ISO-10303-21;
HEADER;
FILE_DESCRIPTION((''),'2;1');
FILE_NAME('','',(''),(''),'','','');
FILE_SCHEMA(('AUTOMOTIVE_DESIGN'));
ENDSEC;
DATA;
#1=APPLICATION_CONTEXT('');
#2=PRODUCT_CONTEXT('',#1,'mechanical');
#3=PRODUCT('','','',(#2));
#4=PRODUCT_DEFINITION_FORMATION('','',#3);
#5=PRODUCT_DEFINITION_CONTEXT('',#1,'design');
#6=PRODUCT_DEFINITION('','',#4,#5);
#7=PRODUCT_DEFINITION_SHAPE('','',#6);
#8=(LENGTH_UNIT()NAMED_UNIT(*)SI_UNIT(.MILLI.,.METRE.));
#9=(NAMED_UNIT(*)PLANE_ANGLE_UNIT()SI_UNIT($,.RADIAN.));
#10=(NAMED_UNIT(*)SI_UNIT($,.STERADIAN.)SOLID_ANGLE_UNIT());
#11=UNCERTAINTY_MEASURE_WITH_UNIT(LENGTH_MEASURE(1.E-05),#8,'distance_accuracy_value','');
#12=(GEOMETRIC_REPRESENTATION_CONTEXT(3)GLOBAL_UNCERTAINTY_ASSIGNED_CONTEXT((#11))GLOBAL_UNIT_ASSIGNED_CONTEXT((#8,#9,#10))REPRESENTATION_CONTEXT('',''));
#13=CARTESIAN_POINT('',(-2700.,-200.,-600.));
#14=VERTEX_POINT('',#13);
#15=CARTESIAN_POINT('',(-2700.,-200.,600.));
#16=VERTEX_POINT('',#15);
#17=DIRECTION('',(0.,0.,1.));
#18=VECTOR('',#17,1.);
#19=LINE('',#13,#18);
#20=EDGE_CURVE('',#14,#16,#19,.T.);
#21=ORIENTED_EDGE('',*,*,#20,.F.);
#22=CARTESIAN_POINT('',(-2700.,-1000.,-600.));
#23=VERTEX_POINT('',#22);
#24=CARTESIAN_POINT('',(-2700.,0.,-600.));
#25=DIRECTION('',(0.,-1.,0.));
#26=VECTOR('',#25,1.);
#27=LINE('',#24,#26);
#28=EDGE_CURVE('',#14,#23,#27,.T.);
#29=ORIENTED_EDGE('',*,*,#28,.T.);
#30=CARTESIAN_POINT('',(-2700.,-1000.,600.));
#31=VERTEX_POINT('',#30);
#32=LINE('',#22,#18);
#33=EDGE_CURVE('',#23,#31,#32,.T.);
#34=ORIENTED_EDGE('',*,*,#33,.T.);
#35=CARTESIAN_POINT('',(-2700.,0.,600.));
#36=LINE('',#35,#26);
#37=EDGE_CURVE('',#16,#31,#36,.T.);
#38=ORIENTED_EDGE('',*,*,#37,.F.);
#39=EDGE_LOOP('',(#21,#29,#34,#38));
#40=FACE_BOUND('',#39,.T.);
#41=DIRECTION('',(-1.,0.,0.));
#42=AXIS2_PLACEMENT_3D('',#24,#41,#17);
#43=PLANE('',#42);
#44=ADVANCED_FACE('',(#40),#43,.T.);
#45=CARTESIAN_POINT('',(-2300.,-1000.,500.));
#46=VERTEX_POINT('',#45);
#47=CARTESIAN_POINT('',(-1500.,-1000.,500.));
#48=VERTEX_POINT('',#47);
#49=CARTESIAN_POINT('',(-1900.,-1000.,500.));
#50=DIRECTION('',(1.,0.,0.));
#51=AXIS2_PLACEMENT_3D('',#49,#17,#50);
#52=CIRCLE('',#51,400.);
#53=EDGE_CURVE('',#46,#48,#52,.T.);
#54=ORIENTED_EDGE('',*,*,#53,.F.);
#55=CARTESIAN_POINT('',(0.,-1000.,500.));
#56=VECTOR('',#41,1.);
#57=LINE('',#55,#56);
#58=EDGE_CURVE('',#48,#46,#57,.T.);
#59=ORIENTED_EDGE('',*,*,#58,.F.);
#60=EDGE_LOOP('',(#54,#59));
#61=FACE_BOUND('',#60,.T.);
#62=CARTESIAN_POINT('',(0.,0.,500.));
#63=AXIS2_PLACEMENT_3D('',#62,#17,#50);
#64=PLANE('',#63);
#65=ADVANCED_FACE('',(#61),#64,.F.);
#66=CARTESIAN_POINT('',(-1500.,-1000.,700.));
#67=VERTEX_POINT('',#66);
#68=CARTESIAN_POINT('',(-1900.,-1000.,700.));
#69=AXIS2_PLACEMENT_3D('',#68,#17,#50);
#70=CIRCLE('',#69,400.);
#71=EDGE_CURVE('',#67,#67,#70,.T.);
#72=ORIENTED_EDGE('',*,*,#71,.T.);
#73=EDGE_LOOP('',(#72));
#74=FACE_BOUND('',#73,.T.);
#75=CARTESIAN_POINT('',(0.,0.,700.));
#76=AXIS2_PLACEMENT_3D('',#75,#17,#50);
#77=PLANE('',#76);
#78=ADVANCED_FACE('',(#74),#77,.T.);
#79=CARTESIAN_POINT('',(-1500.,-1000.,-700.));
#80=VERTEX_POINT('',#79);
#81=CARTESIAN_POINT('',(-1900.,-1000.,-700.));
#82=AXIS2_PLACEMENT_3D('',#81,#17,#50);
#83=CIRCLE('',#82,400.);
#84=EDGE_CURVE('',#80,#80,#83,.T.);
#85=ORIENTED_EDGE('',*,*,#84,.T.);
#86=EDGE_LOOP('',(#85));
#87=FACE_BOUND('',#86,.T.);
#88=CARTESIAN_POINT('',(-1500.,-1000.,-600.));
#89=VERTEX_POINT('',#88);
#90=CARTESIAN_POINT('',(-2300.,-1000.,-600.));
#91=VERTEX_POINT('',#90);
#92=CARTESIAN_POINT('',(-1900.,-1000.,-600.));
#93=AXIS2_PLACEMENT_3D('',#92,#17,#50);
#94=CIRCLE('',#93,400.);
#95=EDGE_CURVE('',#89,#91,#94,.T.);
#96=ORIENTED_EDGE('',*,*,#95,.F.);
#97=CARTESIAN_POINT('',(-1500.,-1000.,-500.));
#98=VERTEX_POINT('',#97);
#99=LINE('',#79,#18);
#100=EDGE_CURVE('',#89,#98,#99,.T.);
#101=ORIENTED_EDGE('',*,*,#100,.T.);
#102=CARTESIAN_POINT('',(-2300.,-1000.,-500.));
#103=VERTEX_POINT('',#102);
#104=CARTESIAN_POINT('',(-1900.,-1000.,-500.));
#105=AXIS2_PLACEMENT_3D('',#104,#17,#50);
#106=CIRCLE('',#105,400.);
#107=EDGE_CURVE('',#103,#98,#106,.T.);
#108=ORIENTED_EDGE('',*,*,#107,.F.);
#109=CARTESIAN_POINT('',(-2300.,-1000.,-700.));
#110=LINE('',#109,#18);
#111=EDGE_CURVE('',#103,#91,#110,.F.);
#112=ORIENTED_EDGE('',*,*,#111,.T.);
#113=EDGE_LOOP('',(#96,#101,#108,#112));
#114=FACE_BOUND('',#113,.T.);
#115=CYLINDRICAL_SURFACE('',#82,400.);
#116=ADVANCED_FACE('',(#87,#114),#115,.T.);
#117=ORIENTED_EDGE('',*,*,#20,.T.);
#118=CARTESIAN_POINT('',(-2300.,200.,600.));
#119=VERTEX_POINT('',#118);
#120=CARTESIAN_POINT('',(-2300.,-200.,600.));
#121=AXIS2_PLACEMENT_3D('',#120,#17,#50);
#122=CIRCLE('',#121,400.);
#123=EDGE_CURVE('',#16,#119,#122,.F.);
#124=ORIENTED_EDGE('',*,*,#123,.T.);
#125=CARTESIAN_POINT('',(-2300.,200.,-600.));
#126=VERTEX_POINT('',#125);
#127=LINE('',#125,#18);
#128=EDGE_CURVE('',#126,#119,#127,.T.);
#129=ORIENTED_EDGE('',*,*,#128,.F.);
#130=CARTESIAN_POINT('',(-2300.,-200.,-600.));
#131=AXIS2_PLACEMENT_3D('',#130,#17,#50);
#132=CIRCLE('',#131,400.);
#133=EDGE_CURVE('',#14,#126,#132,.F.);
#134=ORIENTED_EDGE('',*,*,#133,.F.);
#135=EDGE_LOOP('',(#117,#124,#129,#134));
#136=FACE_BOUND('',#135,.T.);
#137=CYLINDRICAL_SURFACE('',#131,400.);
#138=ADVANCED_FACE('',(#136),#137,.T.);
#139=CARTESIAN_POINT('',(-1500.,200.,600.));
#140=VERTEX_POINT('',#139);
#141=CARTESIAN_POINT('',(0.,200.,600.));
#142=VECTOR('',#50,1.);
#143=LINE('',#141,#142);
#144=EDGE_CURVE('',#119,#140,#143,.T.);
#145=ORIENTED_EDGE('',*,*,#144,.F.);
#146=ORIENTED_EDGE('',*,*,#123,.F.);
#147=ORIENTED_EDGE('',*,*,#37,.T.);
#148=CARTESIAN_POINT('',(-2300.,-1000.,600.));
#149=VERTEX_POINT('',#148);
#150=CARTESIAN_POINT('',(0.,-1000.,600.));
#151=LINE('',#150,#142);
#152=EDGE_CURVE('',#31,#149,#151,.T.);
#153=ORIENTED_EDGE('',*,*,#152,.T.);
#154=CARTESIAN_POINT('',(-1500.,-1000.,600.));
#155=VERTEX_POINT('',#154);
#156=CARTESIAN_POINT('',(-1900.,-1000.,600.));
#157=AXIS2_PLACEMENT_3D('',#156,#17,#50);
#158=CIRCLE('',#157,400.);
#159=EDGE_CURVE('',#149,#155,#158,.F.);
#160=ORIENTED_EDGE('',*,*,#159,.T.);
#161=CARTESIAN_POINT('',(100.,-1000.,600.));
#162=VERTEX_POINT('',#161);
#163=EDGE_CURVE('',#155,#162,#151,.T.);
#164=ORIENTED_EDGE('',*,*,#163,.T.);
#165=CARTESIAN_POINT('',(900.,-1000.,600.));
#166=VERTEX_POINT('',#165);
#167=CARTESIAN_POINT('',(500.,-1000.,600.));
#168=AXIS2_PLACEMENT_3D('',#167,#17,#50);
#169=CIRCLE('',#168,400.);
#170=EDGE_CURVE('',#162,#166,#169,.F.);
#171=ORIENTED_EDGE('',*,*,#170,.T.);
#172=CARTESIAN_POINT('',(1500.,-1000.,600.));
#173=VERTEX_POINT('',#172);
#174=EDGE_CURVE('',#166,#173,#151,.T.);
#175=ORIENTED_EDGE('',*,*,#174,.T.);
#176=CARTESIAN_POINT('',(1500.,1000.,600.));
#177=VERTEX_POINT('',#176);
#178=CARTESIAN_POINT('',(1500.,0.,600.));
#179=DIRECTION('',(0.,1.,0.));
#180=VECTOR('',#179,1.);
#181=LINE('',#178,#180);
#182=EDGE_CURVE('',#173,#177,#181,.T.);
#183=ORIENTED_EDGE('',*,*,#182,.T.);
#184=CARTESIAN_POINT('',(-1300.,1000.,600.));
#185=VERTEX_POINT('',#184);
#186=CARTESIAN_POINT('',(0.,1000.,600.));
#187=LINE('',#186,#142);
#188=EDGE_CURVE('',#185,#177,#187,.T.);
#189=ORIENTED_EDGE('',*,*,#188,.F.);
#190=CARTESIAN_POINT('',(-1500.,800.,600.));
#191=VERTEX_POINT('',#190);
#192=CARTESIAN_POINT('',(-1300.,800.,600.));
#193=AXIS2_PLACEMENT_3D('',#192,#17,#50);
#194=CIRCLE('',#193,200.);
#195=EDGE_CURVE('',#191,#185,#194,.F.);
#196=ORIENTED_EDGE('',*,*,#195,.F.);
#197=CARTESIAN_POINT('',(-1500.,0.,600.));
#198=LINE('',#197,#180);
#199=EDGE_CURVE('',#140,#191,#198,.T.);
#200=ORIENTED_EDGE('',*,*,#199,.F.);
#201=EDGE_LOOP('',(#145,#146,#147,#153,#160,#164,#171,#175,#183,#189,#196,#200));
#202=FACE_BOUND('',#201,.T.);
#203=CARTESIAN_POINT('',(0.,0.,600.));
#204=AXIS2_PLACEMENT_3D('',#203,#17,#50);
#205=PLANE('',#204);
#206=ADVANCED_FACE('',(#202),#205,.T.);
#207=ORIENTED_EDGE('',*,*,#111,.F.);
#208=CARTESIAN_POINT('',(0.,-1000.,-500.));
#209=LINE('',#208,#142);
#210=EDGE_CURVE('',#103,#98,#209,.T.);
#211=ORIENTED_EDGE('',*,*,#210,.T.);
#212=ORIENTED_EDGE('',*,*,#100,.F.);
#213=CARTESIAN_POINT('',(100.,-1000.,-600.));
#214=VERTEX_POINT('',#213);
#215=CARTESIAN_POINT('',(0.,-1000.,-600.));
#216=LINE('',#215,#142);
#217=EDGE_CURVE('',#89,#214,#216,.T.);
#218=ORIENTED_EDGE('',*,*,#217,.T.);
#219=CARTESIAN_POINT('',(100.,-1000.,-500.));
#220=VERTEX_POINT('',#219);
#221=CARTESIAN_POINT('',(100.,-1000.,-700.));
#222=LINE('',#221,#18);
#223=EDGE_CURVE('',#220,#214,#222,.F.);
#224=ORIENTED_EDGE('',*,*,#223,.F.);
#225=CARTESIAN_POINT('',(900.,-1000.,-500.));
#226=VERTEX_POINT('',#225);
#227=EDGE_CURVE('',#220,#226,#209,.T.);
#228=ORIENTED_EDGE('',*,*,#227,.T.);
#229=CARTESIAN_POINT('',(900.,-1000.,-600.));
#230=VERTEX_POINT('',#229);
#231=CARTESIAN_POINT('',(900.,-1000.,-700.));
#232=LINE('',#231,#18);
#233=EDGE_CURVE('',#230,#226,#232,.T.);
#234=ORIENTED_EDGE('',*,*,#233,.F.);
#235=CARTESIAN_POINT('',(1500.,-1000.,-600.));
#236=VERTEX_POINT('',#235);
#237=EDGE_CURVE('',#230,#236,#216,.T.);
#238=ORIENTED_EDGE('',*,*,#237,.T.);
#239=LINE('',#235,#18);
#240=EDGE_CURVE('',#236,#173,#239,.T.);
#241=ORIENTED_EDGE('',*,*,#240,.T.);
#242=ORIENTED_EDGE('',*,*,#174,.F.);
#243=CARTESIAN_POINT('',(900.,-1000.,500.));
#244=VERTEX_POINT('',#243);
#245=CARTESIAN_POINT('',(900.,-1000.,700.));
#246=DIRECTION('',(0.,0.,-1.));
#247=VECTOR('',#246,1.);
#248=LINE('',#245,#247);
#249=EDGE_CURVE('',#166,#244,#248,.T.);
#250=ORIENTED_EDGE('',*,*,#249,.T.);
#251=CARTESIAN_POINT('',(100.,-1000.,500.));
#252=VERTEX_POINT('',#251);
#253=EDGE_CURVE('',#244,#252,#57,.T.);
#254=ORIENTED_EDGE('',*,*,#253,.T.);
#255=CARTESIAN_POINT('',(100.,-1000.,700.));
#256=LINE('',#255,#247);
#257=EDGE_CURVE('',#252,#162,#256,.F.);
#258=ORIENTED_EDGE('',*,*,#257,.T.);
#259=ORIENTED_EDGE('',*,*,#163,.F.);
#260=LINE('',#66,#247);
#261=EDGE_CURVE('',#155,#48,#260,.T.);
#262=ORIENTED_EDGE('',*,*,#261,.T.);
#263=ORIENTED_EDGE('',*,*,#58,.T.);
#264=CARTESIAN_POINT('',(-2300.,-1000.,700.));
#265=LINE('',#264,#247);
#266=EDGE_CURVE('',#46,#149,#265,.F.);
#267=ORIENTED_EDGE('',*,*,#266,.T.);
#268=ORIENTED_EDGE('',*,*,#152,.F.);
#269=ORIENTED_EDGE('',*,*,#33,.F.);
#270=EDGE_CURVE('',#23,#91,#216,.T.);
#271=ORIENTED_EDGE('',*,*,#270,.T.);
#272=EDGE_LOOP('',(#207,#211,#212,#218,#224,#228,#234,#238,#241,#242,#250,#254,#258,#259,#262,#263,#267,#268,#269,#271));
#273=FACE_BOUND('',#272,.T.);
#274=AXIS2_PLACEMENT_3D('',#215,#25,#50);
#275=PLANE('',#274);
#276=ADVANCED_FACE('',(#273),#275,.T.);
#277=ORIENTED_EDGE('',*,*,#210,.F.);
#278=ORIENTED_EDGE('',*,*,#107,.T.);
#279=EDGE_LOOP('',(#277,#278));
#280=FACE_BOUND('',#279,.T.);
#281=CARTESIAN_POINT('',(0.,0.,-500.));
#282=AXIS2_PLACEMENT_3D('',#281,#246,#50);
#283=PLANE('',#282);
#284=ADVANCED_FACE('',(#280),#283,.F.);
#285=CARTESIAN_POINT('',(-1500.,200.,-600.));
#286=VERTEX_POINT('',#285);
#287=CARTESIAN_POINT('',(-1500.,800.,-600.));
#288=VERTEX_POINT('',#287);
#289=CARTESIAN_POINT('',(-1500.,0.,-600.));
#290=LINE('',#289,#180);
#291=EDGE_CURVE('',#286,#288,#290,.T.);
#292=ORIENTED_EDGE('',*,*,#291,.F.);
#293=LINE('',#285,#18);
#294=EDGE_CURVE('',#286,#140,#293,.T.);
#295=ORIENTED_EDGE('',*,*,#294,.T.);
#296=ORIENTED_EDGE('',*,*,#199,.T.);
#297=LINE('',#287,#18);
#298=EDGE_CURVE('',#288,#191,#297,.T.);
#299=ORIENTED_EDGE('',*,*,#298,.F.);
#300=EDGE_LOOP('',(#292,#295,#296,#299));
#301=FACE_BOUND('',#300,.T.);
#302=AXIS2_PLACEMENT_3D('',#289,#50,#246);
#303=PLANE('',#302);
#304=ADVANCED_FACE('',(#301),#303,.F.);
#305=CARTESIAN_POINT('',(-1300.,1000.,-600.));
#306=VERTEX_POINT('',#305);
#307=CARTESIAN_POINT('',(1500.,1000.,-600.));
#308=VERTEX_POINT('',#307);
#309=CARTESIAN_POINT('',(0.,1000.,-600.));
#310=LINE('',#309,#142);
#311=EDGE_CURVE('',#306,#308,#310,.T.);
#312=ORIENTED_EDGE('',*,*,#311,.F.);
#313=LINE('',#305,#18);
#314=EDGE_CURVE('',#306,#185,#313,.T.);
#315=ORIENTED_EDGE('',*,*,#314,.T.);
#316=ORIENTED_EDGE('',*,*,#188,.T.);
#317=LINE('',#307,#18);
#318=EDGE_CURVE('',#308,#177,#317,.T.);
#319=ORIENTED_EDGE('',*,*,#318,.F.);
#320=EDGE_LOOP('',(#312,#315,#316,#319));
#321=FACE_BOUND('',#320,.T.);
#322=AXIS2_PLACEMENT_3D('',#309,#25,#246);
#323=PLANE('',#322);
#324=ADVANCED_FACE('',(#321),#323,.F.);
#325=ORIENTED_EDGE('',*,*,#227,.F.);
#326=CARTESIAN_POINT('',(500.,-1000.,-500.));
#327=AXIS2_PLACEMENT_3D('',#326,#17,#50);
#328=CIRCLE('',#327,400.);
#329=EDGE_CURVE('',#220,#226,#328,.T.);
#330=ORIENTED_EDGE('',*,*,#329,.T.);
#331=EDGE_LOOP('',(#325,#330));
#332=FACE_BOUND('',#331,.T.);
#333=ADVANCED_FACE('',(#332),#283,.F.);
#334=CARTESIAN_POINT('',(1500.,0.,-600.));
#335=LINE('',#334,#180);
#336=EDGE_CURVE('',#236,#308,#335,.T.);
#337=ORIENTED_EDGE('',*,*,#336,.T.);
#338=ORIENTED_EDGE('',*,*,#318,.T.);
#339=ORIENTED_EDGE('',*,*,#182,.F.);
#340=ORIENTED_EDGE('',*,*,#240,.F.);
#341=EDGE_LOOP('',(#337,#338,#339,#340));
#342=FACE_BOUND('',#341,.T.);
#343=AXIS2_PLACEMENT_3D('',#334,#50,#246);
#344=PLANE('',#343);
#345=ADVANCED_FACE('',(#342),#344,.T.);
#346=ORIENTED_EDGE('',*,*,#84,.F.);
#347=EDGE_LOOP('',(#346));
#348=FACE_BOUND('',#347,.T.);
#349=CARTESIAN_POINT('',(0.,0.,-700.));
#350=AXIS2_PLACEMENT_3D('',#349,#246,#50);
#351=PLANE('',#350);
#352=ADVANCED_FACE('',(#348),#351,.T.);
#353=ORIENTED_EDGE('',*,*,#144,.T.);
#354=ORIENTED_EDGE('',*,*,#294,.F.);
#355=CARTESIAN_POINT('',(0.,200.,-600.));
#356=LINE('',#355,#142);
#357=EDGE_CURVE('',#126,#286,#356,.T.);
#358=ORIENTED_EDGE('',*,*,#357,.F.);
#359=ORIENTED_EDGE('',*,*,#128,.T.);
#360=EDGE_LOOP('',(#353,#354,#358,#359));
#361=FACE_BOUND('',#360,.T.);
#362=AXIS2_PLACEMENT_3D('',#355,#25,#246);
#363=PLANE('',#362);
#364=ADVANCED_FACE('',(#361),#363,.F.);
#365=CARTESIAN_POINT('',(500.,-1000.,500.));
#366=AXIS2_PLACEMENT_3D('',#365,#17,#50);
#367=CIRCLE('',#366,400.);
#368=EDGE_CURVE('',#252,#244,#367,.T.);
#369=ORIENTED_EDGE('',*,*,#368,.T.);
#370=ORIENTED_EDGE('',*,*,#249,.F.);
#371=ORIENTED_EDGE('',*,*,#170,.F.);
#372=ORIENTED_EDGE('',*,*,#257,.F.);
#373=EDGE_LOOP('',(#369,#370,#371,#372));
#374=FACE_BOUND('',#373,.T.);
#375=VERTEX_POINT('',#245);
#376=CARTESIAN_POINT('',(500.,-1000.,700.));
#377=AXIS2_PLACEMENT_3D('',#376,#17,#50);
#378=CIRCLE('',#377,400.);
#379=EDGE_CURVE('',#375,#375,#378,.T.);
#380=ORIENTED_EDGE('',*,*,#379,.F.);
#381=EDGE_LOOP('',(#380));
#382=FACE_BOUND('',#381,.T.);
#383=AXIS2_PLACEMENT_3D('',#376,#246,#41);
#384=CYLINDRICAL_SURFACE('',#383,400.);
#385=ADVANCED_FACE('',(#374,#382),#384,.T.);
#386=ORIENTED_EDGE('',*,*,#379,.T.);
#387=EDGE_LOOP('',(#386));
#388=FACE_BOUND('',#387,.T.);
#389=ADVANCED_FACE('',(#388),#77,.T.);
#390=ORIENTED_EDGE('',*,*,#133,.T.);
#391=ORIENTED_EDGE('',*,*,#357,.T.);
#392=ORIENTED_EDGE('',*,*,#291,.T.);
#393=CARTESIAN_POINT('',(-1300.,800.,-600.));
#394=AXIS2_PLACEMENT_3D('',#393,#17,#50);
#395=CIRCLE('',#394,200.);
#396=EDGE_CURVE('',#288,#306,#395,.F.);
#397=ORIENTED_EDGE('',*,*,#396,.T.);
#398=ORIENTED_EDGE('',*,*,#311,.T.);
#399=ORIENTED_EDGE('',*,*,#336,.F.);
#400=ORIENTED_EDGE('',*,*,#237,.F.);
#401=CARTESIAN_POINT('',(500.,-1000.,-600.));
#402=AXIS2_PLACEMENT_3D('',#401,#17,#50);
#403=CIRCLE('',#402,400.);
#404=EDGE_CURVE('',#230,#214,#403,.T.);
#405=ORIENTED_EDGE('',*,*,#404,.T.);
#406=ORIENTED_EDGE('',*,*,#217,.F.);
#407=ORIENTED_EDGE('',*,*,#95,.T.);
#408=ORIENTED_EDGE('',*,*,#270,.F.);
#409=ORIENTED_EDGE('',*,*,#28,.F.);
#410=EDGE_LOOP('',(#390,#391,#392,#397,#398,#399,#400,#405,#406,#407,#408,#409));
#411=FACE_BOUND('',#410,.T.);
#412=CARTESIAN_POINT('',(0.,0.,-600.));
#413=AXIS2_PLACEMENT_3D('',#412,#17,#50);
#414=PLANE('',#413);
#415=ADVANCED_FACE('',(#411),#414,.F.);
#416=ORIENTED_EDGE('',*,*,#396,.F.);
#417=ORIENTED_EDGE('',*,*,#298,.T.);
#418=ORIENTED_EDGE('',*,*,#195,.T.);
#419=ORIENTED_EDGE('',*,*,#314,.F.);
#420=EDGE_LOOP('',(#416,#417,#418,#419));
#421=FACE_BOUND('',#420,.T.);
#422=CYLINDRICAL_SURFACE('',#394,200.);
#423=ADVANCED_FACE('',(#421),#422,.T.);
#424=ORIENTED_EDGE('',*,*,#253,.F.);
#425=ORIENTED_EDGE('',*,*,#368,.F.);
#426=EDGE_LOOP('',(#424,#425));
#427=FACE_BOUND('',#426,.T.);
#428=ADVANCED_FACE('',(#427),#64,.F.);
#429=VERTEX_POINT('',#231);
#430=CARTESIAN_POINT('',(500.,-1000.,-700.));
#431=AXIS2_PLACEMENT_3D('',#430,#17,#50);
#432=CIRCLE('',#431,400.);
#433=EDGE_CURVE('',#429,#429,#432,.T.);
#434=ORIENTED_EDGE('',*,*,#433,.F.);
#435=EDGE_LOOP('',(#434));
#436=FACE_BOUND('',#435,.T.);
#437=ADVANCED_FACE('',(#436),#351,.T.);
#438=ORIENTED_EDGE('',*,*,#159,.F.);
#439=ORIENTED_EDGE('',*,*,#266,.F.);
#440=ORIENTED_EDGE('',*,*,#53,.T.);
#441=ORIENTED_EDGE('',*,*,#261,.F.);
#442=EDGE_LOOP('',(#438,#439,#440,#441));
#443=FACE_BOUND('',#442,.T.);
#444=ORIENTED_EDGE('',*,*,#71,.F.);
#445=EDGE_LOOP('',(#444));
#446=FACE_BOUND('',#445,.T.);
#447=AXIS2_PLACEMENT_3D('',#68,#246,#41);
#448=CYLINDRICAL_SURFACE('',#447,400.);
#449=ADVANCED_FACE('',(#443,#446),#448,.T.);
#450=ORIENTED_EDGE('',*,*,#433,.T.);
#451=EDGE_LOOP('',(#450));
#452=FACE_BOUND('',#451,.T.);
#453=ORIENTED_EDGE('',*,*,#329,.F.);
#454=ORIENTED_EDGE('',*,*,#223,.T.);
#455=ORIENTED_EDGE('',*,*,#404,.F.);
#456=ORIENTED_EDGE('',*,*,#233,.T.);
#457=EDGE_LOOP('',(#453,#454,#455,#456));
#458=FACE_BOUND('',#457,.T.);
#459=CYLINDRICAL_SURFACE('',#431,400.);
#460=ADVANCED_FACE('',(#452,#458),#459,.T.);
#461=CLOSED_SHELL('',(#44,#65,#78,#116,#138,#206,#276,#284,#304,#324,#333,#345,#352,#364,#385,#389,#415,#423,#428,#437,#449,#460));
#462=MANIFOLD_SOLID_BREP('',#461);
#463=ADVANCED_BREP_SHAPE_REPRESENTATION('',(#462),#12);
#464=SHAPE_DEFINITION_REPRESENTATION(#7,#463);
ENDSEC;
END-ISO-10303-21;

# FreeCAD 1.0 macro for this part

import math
import FreeCAD as App
import Part
import Sketcher

doc = App.newDocument("Part")
body = doc.addObject("PartDesign::Body", "Body")

# Sketch on XY plane
sketch1 = body.newObject("Sketcher::SketchObject", "Sketch")
sketch1.AttachmentSupport = (doc.getObject("XY_Plane"), [""])
sketch1.MapMode = "FlatFace"
sketch1.addGeometry([
    Part.LineSegment(App.Vector(1500, -1000, 0), App.Vector(1500, 1000, 0)),  # 0
    Part.LineSegment(App.Vector(1500, 1000, 0), App.Vector(-1300, 1000, 0)),  # 1
    Part.ArcOfCircle(Part.Circle(App.Vector(-1300, 800, 0), App.Vector(0, 0, 1), 200), math.radians(90), math.radians(180)),  # 2
    Part.LineSegment(App.Vector(-1500, 800, 0), App.Vector(-1500, 200, 0)),  # 3
    Part.LineSegment(App.Vector(-1500, 200, 0), App.Vector(-2300, 200, 0)),  # 4
    Part.ArcOfCircle(Part.Circle(App.Vector(-2300, -200, 0), App.Vector(0, 0, 1), 400), math.radians(90), math.radians(180)),  # 5
    Part.LineSegment(App.Vector(-2700, -200, 0), App.Vector(-2700, -1000, 0)),  # 6
    Part.LineSegment(App.Vector(-2700, -1000, 0), App.Vector(1500, -1000, 0)),  # 7
], False)
sketch1.addConstraint([
    Sketcher.Constraint("Coincident", 0, 2, 1, 1),
    Sketcher.Constraint("Tangent", 1, 2, 2, 1),
    Sketcher.Constraint("Tangent", 2, 2, 3, 1),
    Sketcher.Constraint("Coincident", 3, 2, 4, 1),
    Sketcher.Constraint("Tangent", 4, 2, 5, 1),
    Sketcher.Constraint("Tangent", 5, 2, 6, 1),
    Sketcher.Constraint("Coincident", 6, 2, 7, 1),
    Sketcher.Constraint("Coincident", 7, 2, 0, 1),
    Sketcher.Constraint("Vertical", 0),
    Sketcher.Constraint("Horizontal", 1),
    Sketcher.Constraint("Vertical", 3),
    Sketcher.Constraint("Horizontal", 4),
    Sketcher.Constraint("Vertical", 6),
    Sketcher.Constraint("Horizontal", 7),
    Sketcher.Constraint("Equal", 4, 6),
    Sketcher.Constraint("Radius", 2, 200.0),
    Sketcher.Constraint("Radius", 5, 400.0),
    Sketcher.Constraint("DistanceX", 1, 2, 1, 1, 2800.0),
    Sketcher.Constraint("DistanceX", 4, 2, 4, 1, 800.0),
    Sketcher.Constraint("DistanceY", 0, 1, 0, 2, 2000.0),
    Sketcher.Constraint("DistanceX", 2, 3, -1, 1, 1300.0),
    Sketcher.Constraint("DistanceY", -1, 1, 2, 3, 800.0),
])
pad1 = body.newObject("PartDesign::Pad", "Pad")
pad1.Profile = sketch1
pad1.Length = 1200
pad1.Midplane = True

# Sketch on XY plane
sketch2 = body.newObject("Sketcher::SketchObject", "Sketch001")
sketch2.AttachmentSupport = (doc.getObject("XY_Plane"), [""])
sketch2.MapMode = "FlatFace"
sketch2.AttachmentOffset = App.Placement(App.Vector(0, 0, 600), App.Rotation())
sketch2.addGeometry([
    Part.Circle(App.Vector(-1900, -1000, 0), App.Vector(0, 0, 1), 400),
    Part.Circle(App.Vector(500, -1000, 0), App.Vector(0, 0, 1), 400),
], False)
sketch2.addConstraint([
    Sketcher.Constraint("Equal", 0, 1),
    Sketcher.Constraint("Horizontal", 0, 3, 1, 3),
    Sketcher.Constraint("Diameter", 0, 800.0),
    Sketcher.Constraint("DistanceX", 0, 3, -1, 1, 1900.0),
    Sketcher.Constraint("DistanceY", 0, 3, -1, 1, 1000.0),
    Sketcher.Constraint("DistanceX", -1, 1, 1, 3, 500.0),
])
pad2 = body.newObject("PartDesign::Pad", "Pad001")
pad2.Profile = sketch2
pad2.Length = 200
pad2.Midplane = True
doc.recompute()

mirrored = body.newObject("PartDesign::Mirrored", "Mirrored")
mirrored.Originals = [pad2]
mirrored.MirrorPlane = (doc.getObject("XY_Plane"), [""])
body.Tip = mirrored

doc.recompute()
